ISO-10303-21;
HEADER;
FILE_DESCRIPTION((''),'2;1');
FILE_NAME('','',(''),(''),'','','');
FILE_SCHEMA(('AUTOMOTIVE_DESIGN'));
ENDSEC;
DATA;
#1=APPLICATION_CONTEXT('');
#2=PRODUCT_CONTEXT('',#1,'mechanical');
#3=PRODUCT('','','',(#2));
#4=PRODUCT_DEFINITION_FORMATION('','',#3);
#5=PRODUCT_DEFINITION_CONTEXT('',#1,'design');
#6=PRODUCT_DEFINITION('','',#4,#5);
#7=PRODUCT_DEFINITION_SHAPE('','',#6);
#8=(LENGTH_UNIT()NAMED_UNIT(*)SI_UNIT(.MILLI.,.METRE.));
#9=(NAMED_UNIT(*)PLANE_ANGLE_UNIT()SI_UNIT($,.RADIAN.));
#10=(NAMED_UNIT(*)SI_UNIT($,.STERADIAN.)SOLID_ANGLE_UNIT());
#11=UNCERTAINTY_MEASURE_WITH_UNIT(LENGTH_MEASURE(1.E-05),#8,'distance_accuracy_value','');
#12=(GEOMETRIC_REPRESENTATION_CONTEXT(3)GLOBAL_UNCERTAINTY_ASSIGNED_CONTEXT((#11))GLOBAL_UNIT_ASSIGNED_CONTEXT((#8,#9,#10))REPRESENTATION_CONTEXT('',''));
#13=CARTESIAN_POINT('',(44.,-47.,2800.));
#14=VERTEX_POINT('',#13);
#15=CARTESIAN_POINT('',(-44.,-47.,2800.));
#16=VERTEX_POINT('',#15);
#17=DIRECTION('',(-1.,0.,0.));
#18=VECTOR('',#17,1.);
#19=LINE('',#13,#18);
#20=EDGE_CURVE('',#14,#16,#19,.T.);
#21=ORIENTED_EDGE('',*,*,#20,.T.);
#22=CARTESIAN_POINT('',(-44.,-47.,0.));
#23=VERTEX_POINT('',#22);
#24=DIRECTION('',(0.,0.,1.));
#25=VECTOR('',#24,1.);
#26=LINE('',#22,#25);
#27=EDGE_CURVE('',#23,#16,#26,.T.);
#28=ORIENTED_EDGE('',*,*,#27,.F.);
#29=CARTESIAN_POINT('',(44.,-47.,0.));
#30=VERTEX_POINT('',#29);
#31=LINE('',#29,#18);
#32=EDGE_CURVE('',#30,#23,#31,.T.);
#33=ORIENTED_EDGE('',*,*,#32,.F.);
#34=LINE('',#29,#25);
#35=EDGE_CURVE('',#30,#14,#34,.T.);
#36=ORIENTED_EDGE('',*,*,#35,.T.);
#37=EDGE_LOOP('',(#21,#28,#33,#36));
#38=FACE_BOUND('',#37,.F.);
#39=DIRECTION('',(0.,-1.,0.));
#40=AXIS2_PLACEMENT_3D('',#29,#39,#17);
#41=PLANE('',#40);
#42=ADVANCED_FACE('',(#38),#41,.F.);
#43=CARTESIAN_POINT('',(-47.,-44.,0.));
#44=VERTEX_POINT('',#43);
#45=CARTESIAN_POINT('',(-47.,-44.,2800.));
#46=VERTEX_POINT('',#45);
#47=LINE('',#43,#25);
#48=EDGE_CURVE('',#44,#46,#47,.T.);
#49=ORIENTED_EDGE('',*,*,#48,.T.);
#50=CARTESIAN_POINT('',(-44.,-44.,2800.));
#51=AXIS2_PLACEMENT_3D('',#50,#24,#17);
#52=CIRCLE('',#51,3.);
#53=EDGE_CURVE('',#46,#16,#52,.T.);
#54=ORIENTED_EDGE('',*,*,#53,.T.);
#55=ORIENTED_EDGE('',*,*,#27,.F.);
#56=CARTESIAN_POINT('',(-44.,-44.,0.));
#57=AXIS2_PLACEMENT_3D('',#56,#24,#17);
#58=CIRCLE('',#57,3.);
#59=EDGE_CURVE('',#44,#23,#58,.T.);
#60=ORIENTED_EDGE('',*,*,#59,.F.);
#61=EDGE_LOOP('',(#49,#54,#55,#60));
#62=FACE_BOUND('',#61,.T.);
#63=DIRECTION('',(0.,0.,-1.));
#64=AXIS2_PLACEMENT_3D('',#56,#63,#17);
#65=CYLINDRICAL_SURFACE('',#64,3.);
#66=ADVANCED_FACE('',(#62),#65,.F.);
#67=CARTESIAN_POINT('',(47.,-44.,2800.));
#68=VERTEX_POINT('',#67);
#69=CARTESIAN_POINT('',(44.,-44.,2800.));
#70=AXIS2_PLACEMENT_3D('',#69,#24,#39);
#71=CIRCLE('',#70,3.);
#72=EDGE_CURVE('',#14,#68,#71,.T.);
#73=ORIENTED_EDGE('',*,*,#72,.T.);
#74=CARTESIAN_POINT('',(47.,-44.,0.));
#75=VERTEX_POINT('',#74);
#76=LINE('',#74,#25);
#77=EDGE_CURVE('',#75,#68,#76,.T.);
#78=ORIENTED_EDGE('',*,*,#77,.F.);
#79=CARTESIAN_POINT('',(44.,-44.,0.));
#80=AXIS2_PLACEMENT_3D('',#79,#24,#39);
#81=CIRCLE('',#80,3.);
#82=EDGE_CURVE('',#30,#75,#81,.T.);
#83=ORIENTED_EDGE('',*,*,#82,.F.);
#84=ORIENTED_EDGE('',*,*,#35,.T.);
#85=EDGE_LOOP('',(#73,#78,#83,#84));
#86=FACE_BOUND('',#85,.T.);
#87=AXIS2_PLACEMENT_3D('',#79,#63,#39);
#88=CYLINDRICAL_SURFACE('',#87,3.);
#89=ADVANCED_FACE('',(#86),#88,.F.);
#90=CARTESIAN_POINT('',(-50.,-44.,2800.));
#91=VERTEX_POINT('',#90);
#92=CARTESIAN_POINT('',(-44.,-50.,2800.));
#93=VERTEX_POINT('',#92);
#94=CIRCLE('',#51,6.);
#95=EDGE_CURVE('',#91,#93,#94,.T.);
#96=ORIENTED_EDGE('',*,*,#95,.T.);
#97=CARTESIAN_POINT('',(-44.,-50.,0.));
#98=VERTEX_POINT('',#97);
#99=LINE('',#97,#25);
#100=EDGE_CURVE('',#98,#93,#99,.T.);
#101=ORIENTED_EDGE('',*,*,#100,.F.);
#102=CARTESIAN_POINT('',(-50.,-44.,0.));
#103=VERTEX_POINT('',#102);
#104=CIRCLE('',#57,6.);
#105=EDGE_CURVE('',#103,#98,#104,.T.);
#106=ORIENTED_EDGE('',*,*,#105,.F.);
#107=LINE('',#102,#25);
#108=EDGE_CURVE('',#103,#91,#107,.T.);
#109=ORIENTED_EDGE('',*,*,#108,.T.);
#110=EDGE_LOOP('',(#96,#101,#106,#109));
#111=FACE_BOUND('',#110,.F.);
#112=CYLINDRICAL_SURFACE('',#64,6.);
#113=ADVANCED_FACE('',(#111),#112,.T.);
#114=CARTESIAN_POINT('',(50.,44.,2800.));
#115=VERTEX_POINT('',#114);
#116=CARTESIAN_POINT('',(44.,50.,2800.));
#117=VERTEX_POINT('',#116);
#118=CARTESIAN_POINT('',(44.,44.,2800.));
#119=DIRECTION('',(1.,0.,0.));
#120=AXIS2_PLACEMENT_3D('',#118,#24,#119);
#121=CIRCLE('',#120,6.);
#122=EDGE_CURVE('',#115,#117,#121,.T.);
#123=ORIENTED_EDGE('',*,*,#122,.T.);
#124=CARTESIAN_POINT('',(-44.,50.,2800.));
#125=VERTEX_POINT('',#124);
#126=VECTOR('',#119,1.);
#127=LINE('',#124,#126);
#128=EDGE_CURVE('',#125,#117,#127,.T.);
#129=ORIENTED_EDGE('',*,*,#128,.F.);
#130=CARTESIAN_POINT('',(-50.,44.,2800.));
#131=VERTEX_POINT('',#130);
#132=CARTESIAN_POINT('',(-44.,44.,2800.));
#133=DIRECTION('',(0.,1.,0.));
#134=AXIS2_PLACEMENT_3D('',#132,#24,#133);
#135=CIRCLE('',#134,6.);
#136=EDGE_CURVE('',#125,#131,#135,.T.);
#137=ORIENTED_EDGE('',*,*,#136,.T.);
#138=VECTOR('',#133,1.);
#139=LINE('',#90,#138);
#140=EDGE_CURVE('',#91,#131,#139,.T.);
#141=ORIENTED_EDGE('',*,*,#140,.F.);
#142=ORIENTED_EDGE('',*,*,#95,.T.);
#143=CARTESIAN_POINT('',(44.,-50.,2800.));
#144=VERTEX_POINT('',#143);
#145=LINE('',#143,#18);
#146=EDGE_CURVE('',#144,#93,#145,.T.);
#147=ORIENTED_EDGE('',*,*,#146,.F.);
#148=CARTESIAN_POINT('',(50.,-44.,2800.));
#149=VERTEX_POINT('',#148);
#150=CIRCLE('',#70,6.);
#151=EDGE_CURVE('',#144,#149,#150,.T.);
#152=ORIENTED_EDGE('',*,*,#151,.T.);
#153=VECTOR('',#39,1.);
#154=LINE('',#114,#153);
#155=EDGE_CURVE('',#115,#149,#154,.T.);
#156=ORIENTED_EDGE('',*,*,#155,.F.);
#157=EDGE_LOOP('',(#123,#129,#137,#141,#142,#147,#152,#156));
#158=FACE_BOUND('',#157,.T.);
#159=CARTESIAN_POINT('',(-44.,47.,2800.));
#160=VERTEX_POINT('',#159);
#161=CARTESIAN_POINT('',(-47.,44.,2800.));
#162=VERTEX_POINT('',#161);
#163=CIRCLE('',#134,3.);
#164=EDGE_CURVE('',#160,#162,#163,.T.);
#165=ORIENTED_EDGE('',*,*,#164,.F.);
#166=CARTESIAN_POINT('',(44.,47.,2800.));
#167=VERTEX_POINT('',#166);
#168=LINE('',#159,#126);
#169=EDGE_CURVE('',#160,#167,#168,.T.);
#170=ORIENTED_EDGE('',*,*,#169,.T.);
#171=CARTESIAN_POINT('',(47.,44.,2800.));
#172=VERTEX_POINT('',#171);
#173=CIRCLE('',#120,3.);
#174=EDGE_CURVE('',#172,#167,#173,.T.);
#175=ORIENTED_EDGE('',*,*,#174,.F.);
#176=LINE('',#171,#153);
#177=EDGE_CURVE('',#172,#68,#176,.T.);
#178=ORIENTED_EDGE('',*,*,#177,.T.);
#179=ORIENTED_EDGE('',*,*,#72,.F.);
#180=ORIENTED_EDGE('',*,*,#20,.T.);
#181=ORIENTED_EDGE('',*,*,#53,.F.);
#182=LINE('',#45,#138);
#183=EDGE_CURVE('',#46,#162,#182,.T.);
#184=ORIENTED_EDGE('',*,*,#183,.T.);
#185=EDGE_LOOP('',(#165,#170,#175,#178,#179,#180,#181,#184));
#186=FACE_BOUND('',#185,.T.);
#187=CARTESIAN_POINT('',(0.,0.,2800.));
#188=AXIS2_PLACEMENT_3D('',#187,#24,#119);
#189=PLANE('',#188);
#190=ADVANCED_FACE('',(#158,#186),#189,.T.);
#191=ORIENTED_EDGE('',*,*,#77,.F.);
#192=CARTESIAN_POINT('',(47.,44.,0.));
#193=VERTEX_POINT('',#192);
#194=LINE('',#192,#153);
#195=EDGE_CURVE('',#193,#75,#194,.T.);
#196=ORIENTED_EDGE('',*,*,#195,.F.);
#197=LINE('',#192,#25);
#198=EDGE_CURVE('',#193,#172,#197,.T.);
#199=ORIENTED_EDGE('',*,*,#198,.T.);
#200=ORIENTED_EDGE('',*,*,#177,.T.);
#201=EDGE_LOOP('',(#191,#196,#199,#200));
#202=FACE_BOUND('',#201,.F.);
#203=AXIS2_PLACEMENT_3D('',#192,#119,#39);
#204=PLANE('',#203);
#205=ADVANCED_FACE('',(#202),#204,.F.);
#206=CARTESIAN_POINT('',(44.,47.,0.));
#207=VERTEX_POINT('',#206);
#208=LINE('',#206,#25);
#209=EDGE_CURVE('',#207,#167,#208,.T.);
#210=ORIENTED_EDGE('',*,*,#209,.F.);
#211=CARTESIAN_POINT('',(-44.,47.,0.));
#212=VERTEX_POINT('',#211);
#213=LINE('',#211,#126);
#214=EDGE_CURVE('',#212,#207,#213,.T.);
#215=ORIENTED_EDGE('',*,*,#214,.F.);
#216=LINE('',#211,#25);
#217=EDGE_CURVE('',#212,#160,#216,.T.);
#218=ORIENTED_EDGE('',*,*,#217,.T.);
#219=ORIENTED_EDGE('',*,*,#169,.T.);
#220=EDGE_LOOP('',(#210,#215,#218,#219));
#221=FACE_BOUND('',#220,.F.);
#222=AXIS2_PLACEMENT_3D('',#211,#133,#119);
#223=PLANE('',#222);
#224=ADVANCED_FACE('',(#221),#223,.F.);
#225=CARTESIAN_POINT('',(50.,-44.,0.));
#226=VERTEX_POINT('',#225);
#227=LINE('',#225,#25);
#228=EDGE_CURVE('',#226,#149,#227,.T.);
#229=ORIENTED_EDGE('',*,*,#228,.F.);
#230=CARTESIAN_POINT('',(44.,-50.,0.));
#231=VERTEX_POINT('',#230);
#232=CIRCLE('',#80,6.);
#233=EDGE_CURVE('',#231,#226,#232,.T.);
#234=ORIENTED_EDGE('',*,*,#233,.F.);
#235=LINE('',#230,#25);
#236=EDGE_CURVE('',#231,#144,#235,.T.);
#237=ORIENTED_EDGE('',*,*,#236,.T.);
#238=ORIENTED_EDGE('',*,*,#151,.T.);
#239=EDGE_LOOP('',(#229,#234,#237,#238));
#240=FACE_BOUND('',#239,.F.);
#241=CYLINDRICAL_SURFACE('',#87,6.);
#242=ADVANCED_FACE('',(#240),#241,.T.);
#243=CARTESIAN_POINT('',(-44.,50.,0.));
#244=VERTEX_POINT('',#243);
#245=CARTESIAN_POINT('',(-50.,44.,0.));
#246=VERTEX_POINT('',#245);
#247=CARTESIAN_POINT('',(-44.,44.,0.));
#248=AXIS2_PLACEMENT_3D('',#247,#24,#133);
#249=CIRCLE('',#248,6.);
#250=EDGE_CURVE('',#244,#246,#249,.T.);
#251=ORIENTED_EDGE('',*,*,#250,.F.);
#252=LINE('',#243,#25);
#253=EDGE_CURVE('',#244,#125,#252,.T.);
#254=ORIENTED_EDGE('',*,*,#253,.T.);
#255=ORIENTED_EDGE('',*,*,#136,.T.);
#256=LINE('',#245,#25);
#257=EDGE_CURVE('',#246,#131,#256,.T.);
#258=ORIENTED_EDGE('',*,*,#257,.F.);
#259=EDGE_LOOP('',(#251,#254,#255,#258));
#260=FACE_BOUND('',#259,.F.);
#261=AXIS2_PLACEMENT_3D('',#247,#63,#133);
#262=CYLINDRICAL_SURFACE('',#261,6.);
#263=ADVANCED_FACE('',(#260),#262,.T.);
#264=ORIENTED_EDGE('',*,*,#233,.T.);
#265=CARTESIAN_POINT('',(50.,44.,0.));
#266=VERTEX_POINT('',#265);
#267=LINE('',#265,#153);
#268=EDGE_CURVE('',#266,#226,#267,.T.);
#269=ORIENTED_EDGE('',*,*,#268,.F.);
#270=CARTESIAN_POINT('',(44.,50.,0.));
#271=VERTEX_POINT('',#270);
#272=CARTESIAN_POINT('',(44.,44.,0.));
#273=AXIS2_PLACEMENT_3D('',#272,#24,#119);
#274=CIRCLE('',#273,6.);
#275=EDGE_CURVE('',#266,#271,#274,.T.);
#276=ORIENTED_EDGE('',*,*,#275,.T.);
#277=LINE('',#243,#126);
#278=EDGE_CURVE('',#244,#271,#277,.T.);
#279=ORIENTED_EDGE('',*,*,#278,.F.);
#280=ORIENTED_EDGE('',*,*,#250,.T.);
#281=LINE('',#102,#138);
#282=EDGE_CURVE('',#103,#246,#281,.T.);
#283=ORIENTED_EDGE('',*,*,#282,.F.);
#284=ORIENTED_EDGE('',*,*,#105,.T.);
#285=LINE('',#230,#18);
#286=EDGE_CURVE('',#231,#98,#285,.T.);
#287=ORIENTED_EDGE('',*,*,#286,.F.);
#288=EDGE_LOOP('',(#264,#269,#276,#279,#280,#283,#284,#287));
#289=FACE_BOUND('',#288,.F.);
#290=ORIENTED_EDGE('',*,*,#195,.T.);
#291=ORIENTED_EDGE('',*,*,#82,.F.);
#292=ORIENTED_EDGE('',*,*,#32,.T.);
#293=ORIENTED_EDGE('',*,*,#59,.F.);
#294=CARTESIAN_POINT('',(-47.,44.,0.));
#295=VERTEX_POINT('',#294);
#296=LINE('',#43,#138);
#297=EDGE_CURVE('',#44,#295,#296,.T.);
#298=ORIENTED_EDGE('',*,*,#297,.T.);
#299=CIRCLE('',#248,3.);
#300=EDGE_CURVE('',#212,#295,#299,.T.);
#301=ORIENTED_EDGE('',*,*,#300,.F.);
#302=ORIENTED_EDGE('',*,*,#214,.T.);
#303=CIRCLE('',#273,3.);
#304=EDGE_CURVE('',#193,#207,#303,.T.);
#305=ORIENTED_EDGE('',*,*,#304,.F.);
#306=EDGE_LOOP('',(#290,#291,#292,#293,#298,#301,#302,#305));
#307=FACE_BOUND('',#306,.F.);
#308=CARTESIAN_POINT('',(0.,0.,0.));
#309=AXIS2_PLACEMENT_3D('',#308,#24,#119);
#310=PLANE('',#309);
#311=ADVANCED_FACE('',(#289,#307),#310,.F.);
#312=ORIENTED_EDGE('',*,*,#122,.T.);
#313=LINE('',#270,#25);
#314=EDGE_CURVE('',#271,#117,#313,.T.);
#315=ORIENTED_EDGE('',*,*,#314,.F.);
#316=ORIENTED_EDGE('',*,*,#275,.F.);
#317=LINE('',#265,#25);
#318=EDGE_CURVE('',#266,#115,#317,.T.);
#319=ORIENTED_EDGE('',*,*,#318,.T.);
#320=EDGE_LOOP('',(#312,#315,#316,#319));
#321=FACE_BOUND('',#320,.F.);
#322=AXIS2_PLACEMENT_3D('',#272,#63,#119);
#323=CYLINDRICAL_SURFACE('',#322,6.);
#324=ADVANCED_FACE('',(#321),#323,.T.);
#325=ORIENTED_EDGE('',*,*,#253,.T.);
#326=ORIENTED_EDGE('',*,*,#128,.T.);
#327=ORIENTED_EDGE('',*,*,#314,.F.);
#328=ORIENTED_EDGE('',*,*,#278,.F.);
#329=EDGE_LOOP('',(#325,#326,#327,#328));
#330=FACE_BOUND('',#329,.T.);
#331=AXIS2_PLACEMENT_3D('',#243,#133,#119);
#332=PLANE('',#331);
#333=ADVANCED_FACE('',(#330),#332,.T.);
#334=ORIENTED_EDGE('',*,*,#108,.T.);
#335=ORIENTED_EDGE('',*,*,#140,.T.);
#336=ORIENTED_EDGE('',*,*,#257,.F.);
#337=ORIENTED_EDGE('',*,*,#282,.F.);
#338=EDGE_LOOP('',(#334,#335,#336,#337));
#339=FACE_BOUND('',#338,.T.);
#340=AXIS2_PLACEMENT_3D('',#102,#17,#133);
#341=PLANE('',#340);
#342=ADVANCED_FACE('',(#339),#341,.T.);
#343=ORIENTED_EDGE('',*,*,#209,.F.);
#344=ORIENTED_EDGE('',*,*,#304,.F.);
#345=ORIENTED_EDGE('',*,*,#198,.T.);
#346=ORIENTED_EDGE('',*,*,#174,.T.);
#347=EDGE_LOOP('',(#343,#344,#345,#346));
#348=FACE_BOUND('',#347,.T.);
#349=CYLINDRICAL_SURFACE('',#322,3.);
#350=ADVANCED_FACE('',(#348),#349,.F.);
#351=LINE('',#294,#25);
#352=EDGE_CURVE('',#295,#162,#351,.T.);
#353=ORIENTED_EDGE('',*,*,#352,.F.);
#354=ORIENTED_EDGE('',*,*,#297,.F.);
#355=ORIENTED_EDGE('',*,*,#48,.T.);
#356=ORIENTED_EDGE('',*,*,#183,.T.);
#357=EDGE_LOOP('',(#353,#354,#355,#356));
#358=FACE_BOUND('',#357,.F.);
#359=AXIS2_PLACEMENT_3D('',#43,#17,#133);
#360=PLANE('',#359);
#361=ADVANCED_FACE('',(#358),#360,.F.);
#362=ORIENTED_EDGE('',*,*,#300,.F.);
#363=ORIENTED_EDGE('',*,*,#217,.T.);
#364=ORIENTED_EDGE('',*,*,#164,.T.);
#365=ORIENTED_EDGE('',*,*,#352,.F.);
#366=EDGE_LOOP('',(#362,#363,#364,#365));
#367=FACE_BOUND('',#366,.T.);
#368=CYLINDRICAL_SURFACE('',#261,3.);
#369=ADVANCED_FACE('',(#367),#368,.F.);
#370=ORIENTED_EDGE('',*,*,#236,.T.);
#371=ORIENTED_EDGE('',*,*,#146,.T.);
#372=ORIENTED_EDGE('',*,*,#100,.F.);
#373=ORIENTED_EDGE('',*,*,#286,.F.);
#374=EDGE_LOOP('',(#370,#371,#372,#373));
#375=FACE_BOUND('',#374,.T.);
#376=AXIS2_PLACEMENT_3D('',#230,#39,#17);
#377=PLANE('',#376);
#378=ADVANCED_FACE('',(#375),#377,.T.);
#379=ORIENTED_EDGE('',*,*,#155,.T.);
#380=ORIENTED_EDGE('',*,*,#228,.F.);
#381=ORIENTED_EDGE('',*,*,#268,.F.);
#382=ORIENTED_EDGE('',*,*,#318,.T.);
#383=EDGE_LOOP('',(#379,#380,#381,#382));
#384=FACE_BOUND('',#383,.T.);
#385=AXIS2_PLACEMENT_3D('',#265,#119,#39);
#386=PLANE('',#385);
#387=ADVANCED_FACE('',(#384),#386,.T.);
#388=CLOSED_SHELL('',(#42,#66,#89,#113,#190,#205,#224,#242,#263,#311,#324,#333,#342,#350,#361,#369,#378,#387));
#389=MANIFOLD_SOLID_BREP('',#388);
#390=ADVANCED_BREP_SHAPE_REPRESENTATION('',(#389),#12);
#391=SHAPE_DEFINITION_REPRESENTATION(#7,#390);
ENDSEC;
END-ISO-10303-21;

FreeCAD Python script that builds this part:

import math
import FreeCAD as App
import Part
import Sketcher

doc = App.newDocument("Part")
params = doc.addObject("Spreadsheet::Sheet", "Params")
for row, (alias, value) in enumerate([
    ("sketch1_radius", "6 mm"),
    ("sketch1_radius2", "3 mm"),
    ("pad1_length", "2800 mm"),
], start=1):
    params.set(f"A{row}", alias)
    params.set(f"B{row}", "=" + value)
    params.setAlias(f"B{row}", alias)

body = doc.addObject("PartDesign::Body", "Body")

# Sketch on XY plane
sketch1 = doc.addObject("Sketcher::SketchObject", "Sketch")
body.addObject(sketch1)
sketch1.AttachmentSupport = (doc.XY_Plane, [""])
sketch1.MapMode = "FlatFace"
sketch1.addGeometry(Part.LineSegment(App.Vector(-50, 44, 0), App.Vector(-50, -44, 0)), False)
sketch1.addGeometry(Part.ArcOfCircle(Part.Circle(App.Vector(-44, -44, 0), App.Vector(0, 0, 1), 6), math.radians(180), math.radians(270)), False)
sketch1.addGeometry(Part.LineSegment(App.Vector(-44, -50, 0), App.Vector(44, -50, 0)), False)
sketch1.addGeometry(Part.ArcOfCircle(Part.Circle(App.Vector(44, -44, 0), App.Vector(0, 0, 1), 6), math.radians(-90), math.radians(0)), False)
sketch1.addGeometry(Part.LineSegment(App.Vector(50, -44, 0), App.Vector(50, 44, 0)), False)
sketch1.addGeometry(Part.ArcOfCircle(Part.Circle(App.Vector(44, 44, 0), App.Vector(0, 0, 1), 6), math.radians(0), math.radians(90)), False)
sketch1.addGeometry(Part.LineSegment(App.Vector(44, 50, 0), App.Vector(-44, 50, 0)), False)
sketch1.addGeometry(Part.ArcOfCircle(Part.Circle(App.Vector(-44, 44, 0), App.Vector(0, 0, 1), 6), math.radians(90), math.radians(180)), False)
sketch1.addGeometry(Part.ArcOfCircle(Part.Circle(App.Vector(-44, 44, 0), App.Vector(0, 0, 1), 3), math.radians(90), math.radians(180)), False)
sketch1.addGeometry(Part.LineSegment(App.Vector(-44, 47, 0), App.Vector(44, 47, 0)), False)
sketch1.addGeometry(Part.ArcOfCircle(Part.Circle(App.Vector(44, 44, 0), App.Vector(0, 0, 1), 3), math.radians(0), math.radians(90)), False)
sketch1.addGeometry(Part.LineSegment(App.Vector(47, 44, 0), App.Vector(47, -44, 0)), False)
sketch1.addGeometry(Part.ArcOfCircle(Part.Circle(App.Vector(44, -44, 0), App.Vector(0, 0, 1), 3), math.radians(-90), math.radians(0)), False)
sketch1.addGeometry(Part.LineSegment(App.Vector(44, -47, 0), App.Vector(-44, -47, 0)), False)
sketch1.addGeometry(Part.ArcOfCircle(Part.Circle(App.Vector(-44, -44, 0), App.Vector(0, 0, 1), 3), math.radians(180), math.radians(270)), False)
sketch1.addGeometry(Part.LineSegment(App.Vector(-47, -44, 0), App.Vector(-47, 44, 0)), False)
sketch1.addConstraint(Sketcher.Constraint("Tangent", 0, 2, 1, 1))
sketch1.addConstraint(Sketcher.Constraint("Tangent", 1, 2, 2, 1))
sketch1.addConstraint(Sketcher.Constraint("Tangent", 2, 2, 3, 1))
sketch1.addConstraint(Sketcher.Constraint("Tangent", 3, 2, 4, 1))
sketch1.addConstraint(Sketcher.Constraint("Tangent", 4, 2, 5, 1))
sketch1.addConstraint(Sketcher.Constraint("Tangent", 5, 2, 6, 1))
sketch1.addConstraint(Sketcher.Constraint("Tangent", 6, 2, 7, 1))
sketch1.addConstraint(Sketcher.Constraint("Tangent", 7, 2, 0, 1))
sketch1.addConstraint(Sketcher.Constraint("Tangent", 8, 1, 9, 1))
sketch1.addConstraint(Sketcher.Constraint("Tangent", 9, 2, 10, 2))
sketch1.addConstraint(Sketcher.Constraint("Tangent", 10, 1, 11, 1))
sketch1.addConstraint(Sketcher.Constraint("Tangent", 11, 2, 12, 2))
sketch1.addConstraint(Sketcher.Constraint("Tangent", 12, 1, 13, 1))
sketch1.addConstraint(Sketcher.Constraint("Tangent", 13, 2, 14, 2))
sketch1.addConstraint(Sketcher.Constraint("Tangent", 14, 1, 15, 1))
sketch1.addConstraint(Sketcher.Constraint("Tangent", 15, 2, 8, 2))
sketch1.addConstraint(Sketcher.Constraint("Vertical", 0))
sketch1.addConstraint(Sketcher.Constraint("Horizontal", 2))
sketch1.addConstraint(Sketcher.Constraint("Vertical", 4))
sketch1.addConstraint(Sketcher.Constraint("Horizontal", 6))
sketch1.addConstraint(Sketcher.Constraint("Horizontal", 9))
sketch1.addConstraint(Sketcher.Constraint("Vertical", 11))
sketch1.addConstraint(Sketcher.Constraint("Horizontal", 13))
sketch1.addConstraint(Sketcher.Constraint("Vertical", 15))
sketch1.addConstraint(Sketcher.Constraint("Coincident", 8, 3, 7, 3))
sketch1.addConstraint(Sketcher.Constraint("Coincident", 10, 3, 5, 3))
sketch1.addConstraint(Sketcher.Constraint("Coincident", 12, 3, 3, 3))
sketch1.addConstraint(Sketcher.Constraint("Equal", 1, 3))
sketch1.addConstraint(Sketcher.Constraint("Equal", 3, 5))
sketch1.addConstraint(Sketcher.Constraint("Equal", 5, 7))
sketch1.addConstraint(Sketcher.Constraint("Equal", 12, 14))
sketch1.addConstraint(Sketcher.Constraint("Symmetric", 1, 3, 5, 3, -1, 1))
sketch1.addConstraint(Sketcher.Constraint("Equal", 13, 0))
sketch1.addConstraint(Sketcher.Constraint("Radius", 1, 6.0))
sketch1.addConstraint(Sketcher.Constraint("Radius", 8, 3.0))
sketch1.addConstraint(Sketcher.Constraint("DistanceX", 0, 2, -1, 1, 50.0))
sketch1.setExpression("Constraints[33]", "Params.sketch1_radius")
sketch1.setExpression("Constraints[34]", "Params.sketch1_radius2")
pad1 = doc.addObject("PartDesign::Pad", "Pad")
body.addObject(pad1)
pad1.Profile = sketch1
pad1.setExpression("Length", "Params.pad1_length")

doc.recompute()
